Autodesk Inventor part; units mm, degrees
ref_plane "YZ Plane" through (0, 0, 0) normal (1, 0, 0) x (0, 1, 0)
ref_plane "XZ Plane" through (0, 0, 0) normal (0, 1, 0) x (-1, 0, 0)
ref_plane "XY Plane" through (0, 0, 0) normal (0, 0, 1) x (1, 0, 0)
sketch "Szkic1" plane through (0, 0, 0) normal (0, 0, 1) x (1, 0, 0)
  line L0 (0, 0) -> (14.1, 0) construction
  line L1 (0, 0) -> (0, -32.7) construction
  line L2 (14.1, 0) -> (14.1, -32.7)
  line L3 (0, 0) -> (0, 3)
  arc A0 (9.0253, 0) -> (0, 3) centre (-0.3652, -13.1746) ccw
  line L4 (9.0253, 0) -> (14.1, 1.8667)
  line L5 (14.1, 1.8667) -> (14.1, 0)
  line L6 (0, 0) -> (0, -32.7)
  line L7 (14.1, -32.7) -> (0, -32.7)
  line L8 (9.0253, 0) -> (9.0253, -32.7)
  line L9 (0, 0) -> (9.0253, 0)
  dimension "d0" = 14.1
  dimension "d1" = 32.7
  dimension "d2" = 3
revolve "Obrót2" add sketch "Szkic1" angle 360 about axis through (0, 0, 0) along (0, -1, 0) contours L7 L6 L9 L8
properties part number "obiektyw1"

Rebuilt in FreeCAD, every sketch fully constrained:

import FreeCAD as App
import Part
import Sketcher
from FreeCAD import Vector

doc = App.newDocument("Part")
body = doc.addObject("PartDesign::Body", "Body")

# Sketch on XY plane
sketch1 = body.newObject("Sketcher::SketchObject", "Sketch")
sketch1.AttachmentSupport = (doc.getObject("XY_Plane"), [""])
sketch1.MapMode = "FlatFace"
sketch1.addGeometry(Part.LineSegment(Vector(0, -32.7, 0), Vector(9.0253, -32.7, 0)), False)
sketch1.addGeometry(Part.LineSegment(Vector(9.0253, -32.7, 0), Vector(9.0253, 0, 0)), False)
sketch1.addGeometry(Part.LineSegment(Vector(9.0253, 0, 0), Vector(0, 0, 0)), False)
sketch1.addGeometry(Part.LineSegment(Vector(0, 0, 0), Vector(0, -32.7, 0)), False)
sketch1.addConstraint(Sketcher.Constraint("Coincident", 0, 2, 1, 1))
sketch1.addConstraint(Sketcher.Constraint("Coincident", 1, 2, 2, 1))
sketch1.addConstraint(Sketcher.Constraint("Coincident", 2, 2, 3, 1))
sketch1.addConstraint(Sketcher.Constraint("Coincident", 3, 2, 0, 1))
sketch1.addConstraint(Sketcher.Constraint("Horizontal", 0))
sketch1.addConstraint(Sketcher.Constraint("Vertical", 1))
sketch1.addConstraint(Sketcher.Constraint("Horizontal", 2))
sketch1.addConstraint(Sketcher.Constraint("Vertical", 3))
sketch1.addConstraint(Sketcher.Constraint("Coincident", 2, 2, -1, 1))
sketch1.addConstraint(Sketcher.Constraint("DistanceY", 1, 1, 1, 2, 32.7))
sketch1.addConstraint(Sketcher.Constraint("DistanceX", 0, 1, 0, 2, 9.0253))
revolution = body.newObject("PartDesign::Revolution", "Revolution")
revolution.Profile = sketch1
revolution.ReferenceAxis = (sketch1, ["V_Axis"])
revolution.Angle = 360

doc.recompute()
